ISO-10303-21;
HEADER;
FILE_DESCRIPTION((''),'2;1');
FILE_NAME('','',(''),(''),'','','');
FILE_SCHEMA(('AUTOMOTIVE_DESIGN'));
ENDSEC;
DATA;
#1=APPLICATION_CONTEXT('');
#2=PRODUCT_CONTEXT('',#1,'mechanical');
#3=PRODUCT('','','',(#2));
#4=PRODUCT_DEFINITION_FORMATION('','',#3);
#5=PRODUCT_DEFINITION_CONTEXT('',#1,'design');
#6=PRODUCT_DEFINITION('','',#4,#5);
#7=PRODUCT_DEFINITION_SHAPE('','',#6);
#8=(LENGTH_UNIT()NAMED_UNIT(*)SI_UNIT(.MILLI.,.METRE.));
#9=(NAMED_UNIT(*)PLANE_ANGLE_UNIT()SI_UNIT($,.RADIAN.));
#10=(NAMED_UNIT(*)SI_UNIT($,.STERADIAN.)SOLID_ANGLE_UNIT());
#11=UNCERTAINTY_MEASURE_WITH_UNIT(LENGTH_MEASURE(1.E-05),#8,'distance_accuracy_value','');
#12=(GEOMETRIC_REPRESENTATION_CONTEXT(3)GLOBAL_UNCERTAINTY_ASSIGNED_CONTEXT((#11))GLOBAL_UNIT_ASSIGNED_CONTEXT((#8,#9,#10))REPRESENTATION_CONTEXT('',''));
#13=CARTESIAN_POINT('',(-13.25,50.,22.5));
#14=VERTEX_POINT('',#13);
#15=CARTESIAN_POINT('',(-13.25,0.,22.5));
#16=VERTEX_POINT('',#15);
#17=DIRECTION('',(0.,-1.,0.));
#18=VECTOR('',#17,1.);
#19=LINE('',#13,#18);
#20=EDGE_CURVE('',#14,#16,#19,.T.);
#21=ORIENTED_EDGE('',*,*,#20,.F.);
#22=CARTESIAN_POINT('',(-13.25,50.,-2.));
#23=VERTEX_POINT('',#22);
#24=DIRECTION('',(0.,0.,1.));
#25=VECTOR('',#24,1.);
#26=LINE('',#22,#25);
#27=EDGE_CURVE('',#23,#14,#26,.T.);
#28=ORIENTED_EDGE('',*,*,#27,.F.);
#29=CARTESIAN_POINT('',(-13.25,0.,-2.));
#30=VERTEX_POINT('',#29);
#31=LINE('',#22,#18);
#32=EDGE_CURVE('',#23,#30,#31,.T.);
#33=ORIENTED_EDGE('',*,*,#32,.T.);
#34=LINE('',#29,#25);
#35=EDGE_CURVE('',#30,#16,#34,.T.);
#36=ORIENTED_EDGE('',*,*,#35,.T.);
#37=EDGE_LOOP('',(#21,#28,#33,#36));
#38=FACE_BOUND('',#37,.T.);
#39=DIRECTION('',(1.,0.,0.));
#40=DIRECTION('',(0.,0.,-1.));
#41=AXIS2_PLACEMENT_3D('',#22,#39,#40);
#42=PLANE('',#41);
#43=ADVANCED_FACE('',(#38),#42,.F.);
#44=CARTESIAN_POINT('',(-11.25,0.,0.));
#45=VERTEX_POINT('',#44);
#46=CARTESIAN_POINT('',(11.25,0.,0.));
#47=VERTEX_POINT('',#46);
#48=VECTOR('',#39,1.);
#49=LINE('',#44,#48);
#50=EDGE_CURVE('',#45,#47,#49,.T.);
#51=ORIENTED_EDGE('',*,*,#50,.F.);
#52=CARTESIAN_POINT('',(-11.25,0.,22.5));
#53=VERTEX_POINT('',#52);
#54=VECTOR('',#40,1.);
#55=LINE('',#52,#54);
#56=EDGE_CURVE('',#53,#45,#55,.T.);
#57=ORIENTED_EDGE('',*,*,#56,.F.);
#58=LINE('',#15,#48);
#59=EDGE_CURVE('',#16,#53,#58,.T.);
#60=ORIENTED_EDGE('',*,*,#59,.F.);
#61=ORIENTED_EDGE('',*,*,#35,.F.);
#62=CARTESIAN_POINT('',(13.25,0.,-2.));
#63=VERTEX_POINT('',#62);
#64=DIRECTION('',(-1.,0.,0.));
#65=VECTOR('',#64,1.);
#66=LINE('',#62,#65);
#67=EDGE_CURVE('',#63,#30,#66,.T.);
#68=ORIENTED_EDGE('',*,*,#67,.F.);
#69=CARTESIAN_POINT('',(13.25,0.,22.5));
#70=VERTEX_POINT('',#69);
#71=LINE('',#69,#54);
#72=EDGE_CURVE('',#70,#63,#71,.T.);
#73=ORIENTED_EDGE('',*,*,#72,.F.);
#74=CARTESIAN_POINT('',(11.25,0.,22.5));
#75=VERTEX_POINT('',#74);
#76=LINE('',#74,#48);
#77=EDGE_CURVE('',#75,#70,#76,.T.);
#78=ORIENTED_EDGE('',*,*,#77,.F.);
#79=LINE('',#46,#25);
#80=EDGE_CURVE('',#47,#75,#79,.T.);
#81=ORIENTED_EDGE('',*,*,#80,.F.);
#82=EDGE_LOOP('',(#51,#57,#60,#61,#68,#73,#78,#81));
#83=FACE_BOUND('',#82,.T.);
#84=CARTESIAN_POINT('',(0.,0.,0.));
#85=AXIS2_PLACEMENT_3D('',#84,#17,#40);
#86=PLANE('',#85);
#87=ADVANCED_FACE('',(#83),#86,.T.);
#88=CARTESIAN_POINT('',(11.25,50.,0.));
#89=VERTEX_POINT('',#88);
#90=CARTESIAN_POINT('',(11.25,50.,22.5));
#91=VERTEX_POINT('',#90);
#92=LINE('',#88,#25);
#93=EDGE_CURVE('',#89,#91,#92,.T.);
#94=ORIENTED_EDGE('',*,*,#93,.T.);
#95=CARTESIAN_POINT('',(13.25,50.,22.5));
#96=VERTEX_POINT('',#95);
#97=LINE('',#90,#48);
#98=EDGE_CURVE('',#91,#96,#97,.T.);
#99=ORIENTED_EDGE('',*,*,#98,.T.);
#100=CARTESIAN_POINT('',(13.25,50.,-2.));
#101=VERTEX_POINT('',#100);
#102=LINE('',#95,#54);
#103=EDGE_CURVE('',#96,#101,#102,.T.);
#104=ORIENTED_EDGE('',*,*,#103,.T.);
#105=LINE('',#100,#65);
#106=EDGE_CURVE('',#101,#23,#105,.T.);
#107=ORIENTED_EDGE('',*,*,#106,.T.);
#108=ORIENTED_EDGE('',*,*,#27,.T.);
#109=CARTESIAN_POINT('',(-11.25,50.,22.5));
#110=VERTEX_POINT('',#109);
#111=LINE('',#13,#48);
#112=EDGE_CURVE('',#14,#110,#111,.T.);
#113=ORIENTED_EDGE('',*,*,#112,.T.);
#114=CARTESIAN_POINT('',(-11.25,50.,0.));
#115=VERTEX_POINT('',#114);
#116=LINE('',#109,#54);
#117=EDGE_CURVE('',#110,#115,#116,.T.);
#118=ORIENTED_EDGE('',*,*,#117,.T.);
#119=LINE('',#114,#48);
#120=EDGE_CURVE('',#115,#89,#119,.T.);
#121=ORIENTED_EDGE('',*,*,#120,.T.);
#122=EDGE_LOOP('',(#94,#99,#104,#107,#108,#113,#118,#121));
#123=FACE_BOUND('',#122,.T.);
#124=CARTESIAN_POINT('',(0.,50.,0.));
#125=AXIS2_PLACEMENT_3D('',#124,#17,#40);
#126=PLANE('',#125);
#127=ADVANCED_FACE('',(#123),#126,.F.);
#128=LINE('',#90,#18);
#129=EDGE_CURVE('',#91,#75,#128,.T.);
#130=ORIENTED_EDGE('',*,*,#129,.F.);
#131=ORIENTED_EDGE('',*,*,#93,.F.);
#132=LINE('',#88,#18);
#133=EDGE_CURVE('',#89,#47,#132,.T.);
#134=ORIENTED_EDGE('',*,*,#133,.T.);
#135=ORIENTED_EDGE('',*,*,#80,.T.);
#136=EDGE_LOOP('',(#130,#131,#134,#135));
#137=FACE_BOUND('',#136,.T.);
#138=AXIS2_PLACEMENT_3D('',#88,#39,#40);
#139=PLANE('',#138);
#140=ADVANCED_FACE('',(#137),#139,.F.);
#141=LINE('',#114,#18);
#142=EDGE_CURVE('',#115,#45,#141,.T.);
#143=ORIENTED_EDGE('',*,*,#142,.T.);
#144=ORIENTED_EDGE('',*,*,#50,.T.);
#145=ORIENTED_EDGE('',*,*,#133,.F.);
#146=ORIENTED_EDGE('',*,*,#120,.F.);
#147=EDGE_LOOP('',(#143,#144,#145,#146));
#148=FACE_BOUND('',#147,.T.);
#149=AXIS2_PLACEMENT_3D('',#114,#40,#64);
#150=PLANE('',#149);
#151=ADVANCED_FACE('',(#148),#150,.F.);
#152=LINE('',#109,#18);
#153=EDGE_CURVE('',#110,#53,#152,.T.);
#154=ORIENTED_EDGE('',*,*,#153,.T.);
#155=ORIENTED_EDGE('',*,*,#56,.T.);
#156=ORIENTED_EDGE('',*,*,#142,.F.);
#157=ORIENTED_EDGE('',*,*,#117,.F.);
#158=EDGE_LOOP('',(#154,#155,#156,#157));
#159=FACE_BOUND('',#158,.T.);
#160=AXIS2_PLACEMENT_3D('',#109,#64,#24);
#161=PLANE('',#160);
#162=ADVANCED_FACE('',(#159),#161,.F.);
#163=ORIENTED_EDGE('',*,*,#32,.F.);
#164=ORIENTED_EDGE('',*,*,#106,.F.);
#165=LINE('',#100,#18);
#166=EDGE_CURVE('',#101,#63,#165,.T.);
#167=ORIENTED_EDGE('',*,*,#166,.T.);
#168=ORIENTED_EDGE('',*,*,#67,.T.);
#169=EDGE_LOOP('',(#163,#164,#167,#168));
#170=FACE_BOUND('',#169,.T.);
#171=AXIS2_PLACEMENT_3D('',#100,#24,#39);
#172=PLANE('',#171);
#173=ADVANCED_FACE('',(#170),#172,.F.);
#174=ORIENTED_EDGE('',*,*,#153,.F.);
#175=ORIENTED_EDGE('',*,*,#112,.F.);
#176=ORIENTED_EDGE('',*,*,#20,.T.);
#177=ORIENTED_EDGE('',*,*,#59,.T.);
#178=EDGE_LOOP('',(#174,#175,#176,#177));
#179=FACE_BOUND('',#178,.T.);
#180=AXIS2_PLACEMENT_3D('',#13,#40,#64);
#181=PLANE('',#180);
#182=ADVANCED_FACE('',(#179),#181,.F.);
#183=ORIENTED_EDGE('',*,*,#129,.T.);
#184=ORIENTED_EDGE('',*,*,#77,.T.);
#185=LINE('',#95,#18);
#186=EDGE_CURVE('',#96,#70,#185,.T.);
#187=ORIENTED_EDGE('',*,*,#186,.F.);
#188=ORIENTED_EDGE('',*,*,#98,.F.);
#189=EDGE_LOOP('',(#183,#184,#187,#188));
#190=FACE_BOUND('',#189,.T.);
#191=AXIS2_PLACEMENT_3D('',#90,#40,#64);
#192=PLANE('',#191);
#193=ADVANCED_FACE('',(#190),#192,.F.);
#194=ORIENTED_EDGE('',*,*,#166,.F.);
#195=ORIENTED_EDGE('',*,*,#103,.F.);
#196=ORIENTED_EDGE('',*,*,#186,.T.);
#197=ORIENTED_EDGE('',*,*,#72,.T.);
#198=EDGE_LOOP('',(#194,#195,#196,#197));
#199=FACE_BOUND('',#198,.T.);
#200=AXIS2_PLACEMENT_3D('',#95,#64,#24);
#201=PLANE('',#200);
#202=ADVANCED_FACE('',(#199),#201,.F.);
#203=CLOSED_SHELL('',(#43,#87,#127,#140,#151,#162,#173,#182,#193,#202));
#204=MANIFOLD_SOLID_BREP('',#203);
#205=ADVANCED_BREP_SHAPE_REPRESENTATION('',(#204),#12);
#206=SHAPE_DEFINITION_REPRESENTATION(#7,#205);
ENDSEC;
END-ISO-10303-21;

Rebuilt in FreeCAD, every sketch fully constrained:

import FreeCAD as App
import Part
import Sketcher

doc = App.newDocument("Part")
body = doc.addObject("PartDesign::Body", "Body")

# Sketch on XZ plane
sketch1 = body.newObject("Sketcher::SketchObject", "Sketch")
sketch1.AttachmentSupport = (doc.getObject("XZ_Plane"), [""])
sketch1.MapMode = "FlatFace"
sketch1.addGeometry(Part.LineSegment(App.Vector(-11.2, 0, 0), App.Vector(11.2, 0, 0)), False)
sketch1.addGeometry(Part.LineSegment(App.Vector(11.2, 0, 0), App.Vector(11.2, 22.5, 0)), False)
sketch1.addGeometry(Part.LineSegment(App.Vector(11.2, 22.5, 0), App.Vector(13.2, 22.5, 0)), False)
sketch1.addGeometry(Part.LineSegment(App.Vector(13.2, 22.5, 0), App.Vector(13.2, -2, 0)), False)
sketch1.addGeometry(Part.LineSegment(App.Vector(13.2, -2, 0), App.Vector(-13.2, -2, 0)), False)
sketch1.addGeometry(Part.LineSegment(App.Vector(-13.2, -2, 0), App.Vector(-13.2, 22.5, 0)), False)
sketch1.addGeometry(Part.LineSegment(App.Vector(-13.2, 22.5, 0), App.Vector(-11.2, 22.5, 0)), False)
sketch1.addGeometry(Part.LineSegment(App.Vector(-11.2, 22.5, 0), App.Vector(-11.2, 0, 0)), False)
sketch1.addConstraint(Sketcher.Constraint("Coincident", 0, 2, 1, 1))
sketch1.addConstraint(Sketcher.Constraint("Coincident", 1, 2, 2, 1))
sketch1.addConstraint(Sketcher.Constraint("Coincident", 2, 2, 3, 1))
sketch1.addConstraint(Sketcher.Constraint("Coincident", 3, 2, 4, 1))
sketch1.addConstraint(Sketcher.Constraint("Coincident", 4, 2, 5, 1))
sketch1.addConstraint(Sketcher.Constraint("Coincident", 5, 2, 6, 1))
sketch1.addConstraint(Sketcher.Constraint("Coincident", 6, 2, 7, 1))
sketch1.addConstraint(Sketcher.Constraint("Coincident", 7, 2, 0, 1))
sketch1.addConstraint(Sketcher.Constraint("Horizontal", 0))
sketch1.addConstraint(Sketcher.Constraint("Vertical", 1))
sketch1.addConstraint(Sketcher.Constraint("Horizontal", 2))
sketch1.addConstraint(Sketcher.Constraint("Vertical", 3))
sketch1.addConstraint(Sketcher.Constraint("Horizontal", 4))
sketch1.addConstraint(Sketcher.Constraint("Vertical", 5))
sketch1.addConstraint(Sketcher.Constraint("Horizontal", 6))
sketch1.addConstraint(Sketcher.Constraint("Vertical", 7))
sketch1.addConstraint(Sketcher.Constraint("Symmetric", 0, 2, 7, 2, -1, 1))
sketch1.addConstraint(Sketcher.Constraint("Symmetric", 2, 2, 5, 2, -2))
sketch1.addConstraint(Sketcher.Constraint("Equal", 0, 1))
sketch1.addConstraint(Sketcher.Constraint("DistanceX", 2, 1, 2, 2, 2.0))
sketch1.addConstraint(Sketcher.Constraint("DistanceX", 0, 1, 0, 2, 22.5))
sketch1.addConstraint(Sketcher.Constraint("DistanceY", 3, 2, 3, 1, 24.5))
pad1 = body.newObject("PartDesign::Pad", "Pad")
pad1.Profile = sketch1
pad1.Length = 50
pad1.Reversed = True

doc.recompute()
